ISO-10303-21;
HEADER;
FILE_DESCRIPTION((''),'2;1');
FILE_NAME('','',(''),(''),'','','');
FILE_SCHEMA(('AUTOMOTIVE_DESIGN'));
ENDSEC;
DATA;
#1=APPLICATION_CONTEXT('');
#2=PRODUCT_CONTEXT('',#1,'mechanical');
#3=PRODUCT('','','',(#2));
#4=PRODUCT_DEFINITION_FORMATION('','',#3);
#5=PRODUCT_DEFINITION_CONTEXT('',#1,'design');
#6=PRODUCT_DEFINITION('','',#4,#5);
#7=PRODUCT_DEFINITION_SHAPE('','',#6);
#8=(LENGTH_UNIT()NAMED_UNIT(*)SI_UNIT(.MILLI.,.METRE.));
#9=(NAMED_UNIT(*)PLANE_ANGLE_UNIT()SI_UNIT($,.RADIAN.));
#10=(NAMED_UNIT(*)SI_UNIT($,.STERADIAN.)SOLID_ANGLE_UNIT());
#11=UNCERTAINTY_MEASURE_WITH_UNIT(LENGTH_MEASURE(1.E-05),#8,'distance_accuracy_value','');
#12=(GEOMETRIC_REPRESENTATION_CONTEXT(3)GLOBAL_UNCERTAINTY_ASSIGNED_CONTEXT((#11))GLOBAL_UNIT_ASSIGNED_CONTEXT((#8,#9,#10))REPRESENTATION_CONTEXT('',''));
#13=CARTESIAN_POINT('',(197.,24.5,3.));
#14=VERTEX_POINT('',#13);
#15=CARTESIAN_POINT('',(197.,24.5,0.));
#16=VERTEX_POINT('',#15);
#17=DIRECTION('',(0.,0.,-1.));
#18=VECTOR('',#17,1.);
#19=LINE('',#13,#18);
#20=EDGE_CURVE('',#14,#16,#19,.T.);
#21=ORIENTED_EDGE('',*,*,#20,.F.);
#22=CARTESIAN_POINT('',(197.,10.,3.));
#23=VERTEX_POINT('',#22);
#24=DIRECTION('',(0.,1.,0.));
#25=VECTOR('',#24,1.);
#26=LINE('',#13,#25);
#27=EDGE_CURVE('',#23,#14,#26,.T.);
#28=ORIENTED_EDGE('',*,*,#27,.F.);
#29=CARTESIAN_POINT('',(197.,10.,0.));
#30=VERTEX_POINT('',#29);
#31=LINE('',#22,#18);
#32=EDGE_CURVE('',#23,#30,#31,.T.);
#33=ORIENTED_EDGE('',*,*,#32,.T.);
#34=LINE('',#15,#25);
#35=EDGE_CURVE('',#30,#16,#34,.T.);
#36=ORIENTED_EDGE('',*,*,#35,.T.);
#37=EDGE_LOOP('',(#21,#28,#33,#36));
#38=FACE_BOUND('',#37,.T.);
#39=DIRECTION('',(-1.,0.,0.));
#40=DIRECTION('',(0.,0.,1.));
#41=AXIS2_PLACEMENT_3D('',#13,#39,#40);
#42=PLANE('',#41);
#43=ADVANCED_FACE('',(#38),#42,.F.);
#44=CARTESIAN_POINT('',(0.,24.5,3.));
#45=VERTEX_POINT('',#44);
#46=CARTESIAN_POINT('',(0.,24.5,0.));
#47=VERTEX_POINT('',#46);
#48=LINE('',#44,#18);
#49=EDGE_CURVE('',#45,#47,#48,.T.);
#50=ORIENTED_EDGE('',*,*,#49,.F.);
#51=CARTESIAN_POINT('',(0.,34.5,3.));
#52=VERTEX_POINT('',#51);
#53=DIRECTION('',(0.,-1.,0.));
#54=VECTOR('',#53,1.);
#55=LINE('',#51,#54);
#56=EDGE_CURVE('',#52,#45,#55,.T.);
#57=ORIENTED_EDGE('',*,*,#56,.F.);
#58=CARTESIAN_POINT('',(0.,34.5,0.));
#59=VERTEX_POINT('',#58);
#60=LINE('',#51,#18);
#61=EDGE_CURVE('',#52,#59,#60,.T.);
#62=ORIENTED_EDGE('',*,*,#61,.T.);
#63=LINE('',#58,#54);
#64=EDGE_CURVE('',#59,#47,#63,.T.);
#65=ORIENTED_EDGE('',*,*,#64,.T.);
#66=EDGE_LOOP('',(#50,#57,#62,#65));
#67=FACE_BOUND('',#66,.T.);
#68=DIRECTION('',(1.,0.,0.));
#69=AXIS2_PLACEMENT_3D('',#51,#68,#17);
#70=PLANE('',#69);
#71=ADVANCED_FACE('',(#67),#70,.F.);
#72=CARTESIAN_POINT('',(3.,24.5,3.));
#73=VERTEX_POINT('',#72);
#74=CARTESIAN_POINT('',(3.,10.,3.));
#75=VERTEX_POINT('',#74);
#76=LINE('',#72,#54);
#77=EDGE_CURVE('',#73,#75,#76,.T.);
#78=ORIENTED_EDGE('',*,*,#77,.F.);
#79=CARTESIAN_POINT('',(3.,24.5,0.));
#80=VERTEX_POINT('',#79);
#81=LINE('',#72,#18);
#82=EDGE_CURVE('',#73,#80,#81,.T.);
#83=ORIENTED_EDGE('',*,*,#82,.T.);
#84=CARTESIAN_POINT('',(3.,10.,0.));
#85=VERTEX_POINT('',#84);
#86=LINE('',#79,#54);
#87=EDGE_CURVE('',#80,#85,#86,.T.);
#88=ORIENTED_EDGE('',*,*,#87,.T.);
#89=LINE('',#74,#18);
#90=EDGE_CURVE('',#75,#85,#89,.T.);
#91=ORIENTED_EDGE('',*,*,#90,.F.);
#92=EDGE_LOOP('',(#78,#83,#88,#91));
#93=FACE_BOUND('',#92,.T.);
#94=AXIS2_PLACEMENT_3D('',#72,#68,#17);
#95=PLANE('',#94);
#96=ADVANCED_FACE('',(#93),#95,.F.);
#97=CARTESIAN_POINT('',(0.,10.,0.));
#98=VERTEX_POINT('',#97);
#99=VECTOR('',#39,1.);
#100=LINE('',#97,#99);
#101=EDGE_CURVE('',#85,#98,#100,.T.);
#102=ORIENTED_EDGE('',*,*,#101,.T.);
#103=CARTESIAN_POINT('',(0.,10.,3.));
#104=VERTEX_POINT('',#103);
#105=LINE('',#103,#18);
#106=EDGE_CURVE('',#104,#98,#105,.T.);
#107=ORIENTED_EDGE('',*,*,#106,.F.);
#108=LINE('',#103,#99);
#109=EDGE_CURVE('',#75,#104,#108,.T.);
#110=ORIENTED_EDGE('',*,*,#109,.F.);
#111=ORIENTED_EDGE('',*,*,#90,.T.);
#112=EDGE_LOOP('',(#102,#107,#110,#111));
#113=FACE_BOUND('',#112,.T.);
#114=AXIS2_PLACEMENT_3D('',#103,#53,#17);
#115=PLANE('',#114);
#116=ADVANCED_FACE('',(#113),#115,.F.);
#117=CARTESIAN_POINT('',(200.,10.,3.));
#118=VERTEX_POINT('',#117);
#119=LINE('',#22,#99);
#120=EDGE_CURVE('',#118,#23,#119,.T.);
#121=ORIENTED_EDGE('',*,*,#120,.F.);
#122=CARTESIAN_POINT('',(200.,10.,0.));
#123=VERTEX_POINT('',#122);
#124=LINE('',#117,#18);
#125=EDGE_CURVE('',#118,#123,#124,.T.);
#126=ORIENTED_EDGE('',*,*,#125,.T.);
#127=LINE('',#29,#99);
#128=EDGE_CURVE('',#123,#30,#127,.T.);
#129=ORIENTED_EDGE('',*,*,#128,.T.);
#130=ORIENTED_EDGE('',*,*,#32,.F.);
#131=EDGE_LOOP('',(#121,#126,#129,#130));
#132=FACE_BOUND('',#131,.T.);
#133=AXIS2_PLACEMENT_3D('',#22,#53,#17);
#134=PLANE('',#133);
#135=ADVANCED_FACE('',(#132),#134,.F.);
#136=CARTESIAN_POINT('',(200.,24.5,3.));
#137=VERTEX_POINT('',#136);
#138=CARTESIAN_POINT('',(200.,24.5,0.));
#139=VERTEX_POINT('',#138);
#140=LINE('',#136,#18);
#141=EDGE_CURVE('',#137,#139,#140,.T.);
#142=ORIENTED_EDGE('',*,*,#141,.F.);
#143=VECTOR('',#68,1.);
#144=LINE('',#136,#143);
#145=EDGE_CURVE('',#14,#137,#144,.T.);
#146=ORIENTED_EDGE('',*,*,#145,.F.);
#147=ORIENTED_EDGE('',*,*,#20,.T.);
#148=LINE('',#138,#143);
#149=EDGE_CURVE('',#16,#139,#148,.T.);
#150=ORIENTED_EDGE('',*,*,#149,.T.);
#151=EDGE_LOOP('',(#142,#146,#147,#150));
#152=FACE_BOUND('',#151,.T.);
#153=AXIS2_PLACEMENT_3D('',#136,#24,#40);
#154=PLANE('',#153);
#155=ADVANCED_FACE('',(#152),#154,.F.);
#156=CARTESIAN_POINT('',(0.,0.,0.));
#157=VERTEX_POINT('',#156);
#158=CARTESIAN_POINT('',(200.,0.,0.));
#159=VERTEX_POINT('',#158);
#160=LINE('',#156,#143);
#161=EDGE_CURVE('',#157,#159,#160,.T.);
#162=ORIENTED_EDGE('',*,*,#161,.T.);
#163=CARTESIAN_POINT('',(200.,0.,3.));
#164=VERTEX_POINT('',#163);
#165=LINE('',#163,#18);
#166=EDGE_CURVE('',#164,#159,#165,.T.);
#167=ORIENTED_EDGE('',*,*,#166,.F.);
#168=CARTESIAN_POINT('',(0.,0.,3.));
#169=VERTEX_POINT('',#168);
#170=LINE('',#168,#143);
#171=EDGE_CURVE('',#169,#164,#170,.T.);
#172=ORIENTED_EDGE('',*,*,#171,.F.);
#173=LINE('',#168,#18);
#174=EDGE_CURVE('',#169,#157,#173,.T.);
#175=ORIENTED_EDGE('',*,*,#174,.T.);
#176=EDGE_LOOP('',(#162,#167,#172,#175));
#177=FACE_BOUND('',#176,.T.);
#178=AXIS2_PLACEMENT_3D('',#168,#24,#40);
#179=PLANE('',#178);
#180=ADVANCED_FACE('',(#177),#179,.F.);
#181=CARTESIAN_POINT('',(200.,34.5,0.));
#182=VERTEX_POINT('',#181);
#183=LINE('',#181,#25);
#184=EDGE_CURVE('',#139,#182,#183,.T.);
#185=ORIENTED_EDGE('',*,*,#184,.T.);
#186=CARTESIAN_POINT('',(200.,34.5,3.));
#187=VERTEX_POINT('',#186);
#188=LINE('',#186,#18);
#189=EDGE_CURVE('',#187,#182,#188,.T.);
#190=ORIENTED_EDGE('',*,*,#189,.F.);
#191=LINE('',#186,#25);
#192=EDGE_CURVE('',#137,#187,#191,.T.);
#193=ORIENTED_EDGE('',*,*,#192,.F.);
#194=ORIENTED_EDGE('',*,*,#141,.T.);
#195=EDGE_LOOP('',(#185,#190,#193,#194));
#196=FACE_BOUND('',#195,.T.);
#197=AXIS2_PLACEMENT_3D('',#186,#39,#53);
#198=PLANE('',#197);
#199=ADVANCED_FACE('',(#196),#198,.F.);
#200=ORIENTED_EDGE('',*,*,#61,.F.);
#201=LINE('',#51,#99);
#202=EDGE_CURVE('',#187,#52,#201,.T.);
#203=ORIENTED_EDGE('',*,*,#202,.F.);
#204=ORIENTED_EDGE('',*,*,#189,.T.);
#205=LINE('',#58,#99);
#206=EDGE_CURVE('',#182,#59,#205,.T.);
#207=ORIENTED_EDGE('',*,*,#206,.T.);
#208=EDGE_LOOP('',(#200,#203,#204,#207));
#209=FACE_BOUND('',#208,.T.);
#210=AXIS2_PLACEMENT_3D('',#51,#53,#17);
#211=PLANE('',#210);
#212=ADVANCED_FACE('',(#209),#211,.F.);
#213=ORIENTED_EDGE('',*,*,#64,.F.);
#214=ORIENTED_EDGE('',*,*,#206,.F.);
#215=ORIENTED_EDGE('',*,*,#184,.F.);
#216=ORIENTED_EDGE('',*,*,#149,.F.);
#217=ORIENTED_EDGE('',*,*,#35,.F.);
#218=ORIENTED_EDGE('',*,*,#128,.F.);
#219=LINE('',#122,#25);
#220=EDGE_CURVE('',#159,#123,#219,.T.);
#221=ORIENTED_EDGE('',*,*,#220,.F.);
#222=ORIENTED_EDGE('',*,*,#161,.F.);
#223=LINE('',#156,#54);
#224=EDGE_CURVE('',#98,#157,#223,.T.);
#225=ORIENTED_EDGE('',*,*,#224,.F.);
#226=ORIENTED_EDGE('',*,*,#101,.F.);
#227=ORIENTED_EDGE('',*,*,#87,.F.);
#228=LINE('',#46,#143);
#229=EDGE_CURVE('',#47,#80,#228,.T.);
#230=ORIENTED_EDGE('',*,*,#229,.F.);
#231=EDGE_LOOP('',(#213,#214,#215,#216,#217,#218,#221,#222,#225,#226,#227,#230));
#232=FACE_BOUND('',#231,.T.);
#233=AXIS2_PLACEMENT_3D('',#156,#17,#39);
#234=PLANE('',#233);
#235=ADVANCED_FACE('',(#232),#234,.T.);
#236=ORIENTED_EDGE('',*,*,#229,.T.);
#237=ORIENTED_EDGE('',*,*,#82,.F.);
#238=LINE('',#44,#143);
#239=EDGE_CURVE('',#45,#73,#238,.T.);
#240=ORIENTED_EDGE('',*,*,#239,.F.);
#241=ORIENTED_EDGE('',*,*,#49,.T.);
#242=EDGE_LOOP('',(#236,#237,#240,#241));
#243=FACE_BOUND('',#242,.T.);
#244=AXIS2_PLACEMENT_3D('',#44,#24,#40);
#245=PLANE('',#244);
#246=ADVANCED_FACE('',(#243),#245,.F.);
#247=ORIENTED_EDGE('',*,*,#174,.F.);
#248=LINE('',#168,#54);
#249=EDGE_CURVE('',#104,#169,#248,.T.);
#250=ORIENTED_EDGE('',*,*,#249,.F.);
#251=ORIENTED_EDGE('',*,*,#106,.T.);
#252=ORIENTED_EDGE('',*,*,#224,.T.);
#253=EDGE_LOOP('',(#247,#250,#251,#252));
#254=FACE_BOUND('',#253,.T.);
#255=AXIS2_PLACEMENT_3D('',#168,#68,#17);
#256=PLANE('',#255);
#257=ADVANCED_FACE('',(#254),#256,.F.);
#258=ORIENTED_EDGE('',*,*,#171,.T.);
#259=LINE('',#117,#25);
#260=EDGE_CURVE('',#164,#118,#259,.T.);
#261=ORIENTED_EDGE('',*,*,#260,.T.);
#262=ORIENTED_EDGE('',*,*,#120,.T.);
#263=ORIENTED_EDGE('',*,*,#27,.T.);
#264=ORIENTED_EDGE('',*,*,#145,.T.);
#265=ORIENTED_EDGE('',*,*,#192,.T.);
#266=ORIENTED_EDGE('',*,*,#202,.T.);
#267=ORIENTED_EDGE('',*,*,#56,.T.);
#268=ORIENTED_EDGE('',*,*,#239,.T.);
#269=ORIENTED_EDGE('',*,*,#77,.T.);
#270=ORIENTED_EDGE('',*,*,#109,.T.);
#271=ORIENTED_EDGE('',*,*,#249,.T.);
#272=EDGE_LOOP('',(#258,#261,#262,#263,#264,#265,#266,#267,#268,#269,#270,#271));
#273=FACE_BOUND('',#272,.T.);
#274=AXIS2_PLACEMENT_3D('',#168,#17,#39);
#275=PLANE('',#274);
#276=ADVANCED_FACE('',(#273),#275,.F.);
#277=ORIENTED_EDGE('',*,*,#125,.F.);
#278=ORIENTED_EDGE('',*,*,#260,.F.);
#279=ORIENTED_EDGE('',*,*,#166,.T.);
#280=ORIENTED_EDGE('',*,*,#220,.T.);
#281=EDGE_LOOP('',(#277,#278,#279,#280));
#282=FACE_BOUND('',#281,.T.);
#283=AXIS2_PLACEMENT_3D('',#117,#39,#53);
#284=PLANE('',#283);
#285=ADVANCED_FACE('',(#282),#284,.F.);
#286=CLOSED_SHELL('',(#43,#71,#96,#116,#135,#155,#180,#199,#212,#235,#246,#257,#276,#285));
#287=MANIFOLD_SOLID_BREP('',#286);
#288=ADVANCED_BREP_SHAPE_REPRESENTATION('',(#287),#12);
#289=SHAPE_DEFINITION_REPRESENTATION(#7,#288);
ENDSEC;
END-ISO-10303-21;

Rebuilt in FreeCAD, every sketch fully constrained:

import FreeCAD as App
import Part
import Sketcher

V = App.Vector

doc = App.newDocument("Part")
body = doc.addObject("PartDesign::Body", "Body")

# Sketch on XY plane
sketch1 = doc.addObject("Sketcher::SketchObject", "Sketch")
body.addObject(sketch1)
sketch1.AttachmentSupport = (doc.XY_Plane, [""])
sketch1.MapMode = "FlatFace"
sketch1.addGeometry(Part.LineSegment(V(0, 10, 0), V(0, 0, 0)), False)
sketch1.addGeometry(Part.LineSegment(V(0, 0, 0), V(200, 0, 0)), False)
sketch1.addGeometry(Part.LineSegment(V(200, 0, 0), V(200, 10, 0)), False)
sketch1.addGeometry(Part.LineSegment(V(200, 10, 0), V(197, 10, 0)), False)
sketch1.addGeometry(Part.LineSegment(V(197, 10, 0), V(197, 24.5, 0)), False)
sketch1.addGeometry(Part.LineSegment(V(197, 24.5, 0), V(200, 24.5, 0)), False)
sketch1.addGeometry(Part.LineSegment(V(200, 24.5, 0), V(200, 34.5, 0)), False)
sketch1.addGeometry(Part.LineSegment(V(200, 34.5, 0), V(0, 34.5, 0)), False)
sketch1.addGeometry(Part.LineSegment(V(0, 34.5, 0), V(0, 24.5, 0)), False)
sketch1.addGeometry(Part.LineSegment(V(0, 24.5, 0), V(3, 24.5, 0)), False)
sketch1.addGeometry(Part.LineSegment(V(3, 24.5, 0), V(3, 10, 0)), False)
sketch1.addGeometry(Part.LineSegment(V(3, 10, 0), V(0, 10, 0)), False)
sketch1.addConstraint(Sketcher.Constraint("Coincident", 0, 2, 1, 1))
sketch1.addConstraint(Sketcher.Constraint("Coincident", 1, 2, 2, 1))
sketch1.addConstraint(Sketcher.Constraint("Coincident", 2, 2, 3, 1))
sketch1.addConstraint(Sketcher.Constraint("Coincident", 3, 2, 4, 1))
sketch1.addConstraint(Sketcher.Constraint("Coincident", 4, 2, 5, 1))
sketch1.addConstraint(Sketcher.Constraint("Coincident", 5, 2, 6, 1))
sketch1.addConstraint(Sketcher.Constraint("Coincident", 6, 2, 7, 1))
sketch1.addConstraint(Sketcher.Constraint("Coincident", 7, 2, 8, 1))
sketch1.addConstraint(Sketcher.Constraint("Coincident", 8, 2, 9, 1))
sketch1.addConstraint(Sketcher.Constraint("Coincident", 9, 2, 10, 1))
sketch1.addConstraint(Sketcher.Constraint("Coincident", 10, 2, 11, 1))
sketch1.addConstraint(Sketcher.Constraint("Coincident", 11, 2, 0, 1))
sketch1.addConstraint(Sketcher.Constraint("Vertical", 0))
sketch1.addConstraint(Sketcher.Constraint("Horizontal", 1))
sketch1.addConstraint(Sketcher.Constraint("Vertical", 2))
sketch1.addConstraint(Sketcher.Constraint("Horizontal", 3))
sketch1.addConstraint(Sketcher.Constraint("Vertical", 4))
sketch1.addConstraint(Sketcher.Constraint("Horizontal", 5))
sketch1.addConstraint(Sketcher.Constraint("Vertical", 6))
sketch1.addConstraint(Sketcher.Constraint("Horizontal", 7))
sketch1.addConstraint(Sketcher.Constraint("Vertical", 8))
sketch1.addConstraint(Sketcher.Constraint("Horizontal", 9))
sketch1.addConstraint(Sketcher.Constraint("Vertical", 10))
sketch1.addConstraint(Sketcher.Constraint("Horizontal", 11))
sketch1.addConstraint(Sketcher.Constraint("Coincident", 0, 2, -1, 1))
sketch1.addConstraint(Sketcher.Constraint("PointOnObject", 7, 2, -2))
sketch1.addConstraint(Sketcher.Constraint("Horizontal", 5, 2, 8, 2))
sketch1.addConstraint(Sketcher.Constraint("Horizontal", 3, 2, 10, 2))
sketch1.addConstraint(Sketcher.Constraint("Vertical", 2, 2, 5, 2))
sketch1.addConstraint(Sketcher.Constraint("Equal", 5, 9))
sketch1.addConstraint(Sketcher.Constraint("Equal", 2, 6))
sketch1.addConstraint(Sketcher.Constraint("DistanceX", 1, 1, 1, 2, 200.0))
sketch1.addConstraint(Sketcher.Constraint("DistanceX", 3, 2, 3, 1, 3.0))
sketch1.addConstraint(Sketcher.Constraint("DistanceY", 0, 2, 0, 1, 10.0))
sketch1.addConstraint(Sketcher.Constraint("DistanceY", 4, 1, 4, 2, 14.5))
pad1 = doc.addObject("PartDesign::Pad", "Pad")
body.addObject(pad1)
pad1.Profile = sketch1
pad1.Length = 3

doc.recompute()
